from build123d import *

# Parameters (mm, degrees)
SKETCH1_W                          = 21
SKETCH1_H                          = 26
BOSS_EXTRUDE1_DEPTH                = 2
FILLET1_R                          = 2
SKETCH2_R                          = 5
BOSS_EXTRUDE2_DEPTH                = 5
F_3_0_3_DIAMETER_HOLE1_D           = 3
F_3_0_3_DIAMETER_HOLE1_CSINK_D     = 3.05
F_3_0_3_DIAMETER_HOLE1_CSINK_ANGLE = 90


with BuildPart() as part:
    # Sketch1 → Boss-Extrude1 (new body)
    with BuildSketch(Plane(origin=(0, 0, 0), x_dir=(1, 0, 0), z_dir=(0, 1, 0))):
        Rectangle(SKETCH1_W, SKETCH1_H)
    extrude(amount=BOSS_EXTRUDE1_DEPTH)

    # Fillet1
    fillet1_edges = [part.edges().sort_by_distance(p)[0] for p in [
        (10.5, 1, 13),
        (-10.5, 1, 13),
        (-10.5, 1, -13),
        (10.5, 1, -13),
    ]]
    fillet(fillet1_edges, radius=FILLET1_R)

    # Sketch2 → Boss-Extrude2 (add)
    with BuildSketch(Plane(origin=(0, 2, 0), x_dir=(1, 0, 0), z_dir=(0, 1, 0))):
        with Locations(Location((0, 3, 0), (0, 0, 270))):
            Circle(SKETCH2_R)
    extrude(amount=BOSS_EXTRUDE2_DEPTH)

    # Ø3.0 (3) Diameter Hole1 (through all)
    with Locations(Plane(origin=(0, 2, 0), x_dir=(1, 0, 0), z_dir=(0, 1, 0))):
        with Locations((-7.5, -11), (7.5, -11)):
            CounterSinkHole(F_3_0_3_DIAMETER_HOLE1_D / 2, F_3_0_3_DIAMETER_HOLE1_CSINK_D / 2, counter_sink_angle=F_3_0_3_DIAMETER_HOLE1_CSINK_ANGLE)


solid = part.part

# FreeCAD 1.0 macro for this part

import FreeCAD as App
import Part
import Sketcher
from FreeCAD import Vector
Q = App.Units.Quantity


def edges_at(feature, points):
    """Names of the edges that pass closest to the given points."""
    edges = feature.Shape.Edges
    near = lambda p: min(range(len(edges)), key=lambda i: edges[i].distToShape(Part.Vertex(*p))[0])
    return sorted({f"Edge{near(p) + 1}" for p in points})

doc = App.newDocument("Part")
body = doc.addObject("PartDesign::Body", "Body")

# Sketch on XZ plane
sketch1 = body.newObject("Sketcher::SketchObject", "Sketch")
sketch1.AttachmentSupport = (doc.getObject("XZ_Plane"), [""])
sketch1.MapMode = "FlatFace"
sketch1.addGeometry([
    Part.LineSegment(Vector(-10, -13, 0), Vector(-10, 13, 0)),
    Part.LineSegment(Vector(-10, 13, 0), Vector(10, 13, 0)),
    Part.LineSegment(Vector(10, 13, 0), Vector(10, -13, 0)),
    Part.LineSegment(Vector(10, -13, 0), Vector(-10, -13, 0)),
], False)
sketch1.addConstraint([
    Sketcher.Constraint("Coincident", 0, 2, 1, 1),
    Sketcher.Constraint("Coincident", 1, 2, 2, 1),
    Sketcher.Constraint("Coincident", 2, 2, 3, 1),
    Sketcher.Constraint("Coincident", 3, 2, 0, 1),
    Sketcher.Constraint("Vertical", 0),
    Sketcher.Constraint("Horizontal", 1),
    Sketcher.Constraint("Vertical", 2),
    Sketcher.Constraint("Horizontal", 3),
    Sketcher.Constraint("Symmetric", 0, 2, 2, 2, -1, 1),
    Sketcher.Constraint("DistanceX", 1, 1, 1, 2, Q("21 mm")),
    Sketcher.Constraint("DistanceY", 0, 1, 0, 2, Q("26 mm")),
])
pad1 = body.newObject("PartDesign::Pad", "Pad")
pad1.Profile = sketch1
pad1.Length = 2
pad1.Reversed = True
doc.recompute()

fillet = body.newObject("PartDesign::Fillet", "Fillet")
fillet.Base = (pad1, edges_at(pad1, [
    (10.5, 1, 13),
    (-10.5, 1, 13),
    (-10.5, 1, -13),
    (10.5, 1, -13),
]))
fillet.Radius = 2

# Sketch on XZ plane
sketch2 = body.newObject("Sketcher::SketchObject", "Sketch001")
sketch2.AttachmentSupport = (doc.getObject("XZ_Plane"), [""])
sketch2.MapMode = "FlatFace"
sketch2.AttachmentOffset = App.Placement(Vector(0, 0, -2), App.Rotation())
sketch2.addGeometry(Part.Circle(Vector(0, -3, 0), Vector(0, 0, 1), 5), False)
sketch2.addConstraint([
    Sketcher.Constraint("PointOnObject", 0, 3, -2),
    Sketcher.Constraint("Diameter", 0, Q("10 mm")),
    Sketcher.Constraint("DistanceY", 0, 3, -1, 1, Q("3 mm")),
])
pad2 = body.newObject("PartDesign::Pad", "Pad001")
pad2.Profile = sketch2
pad2.Length = 5
pad2.Reversed = True

# Sketch on XZ plane
sketch3 = body.newObject("Sketcher::SketchObject", "Sketch002")
sketch3.AttachmentSupport = (doc.getObject("XZ_Plane"), [""])
sketch3.MapMode = "FlatFace"
sketch3.AttachmentOffset = App.Placement(Vector(0, 0, -2), App.Rotation())
sketch3.addGeometry([
    Part.Circle(Vector(-7.5, 11, 0), Vector(0, 0, 1), 1.5),
    Part.Circle(Vector(7.5, 11, 0), Vector(0, 0, 1), 1.5),
], False)
sketch3.addConstraint([
    Sketcher.Constraint("Equal", 0, 1),
    Sketcher.Constraint("Symmetric", 0, 3, 1, 3, -2),
    Sketcher.Constraint("Diameter", 0, Q("3 mm")),
    Sketcher.Constraint("DistanceY", -1, 1, 0, 3, Q("11 mm")),
    Sketcher.Constraint("DistanceX", 0, 3, 1, 3, Q("15 mm")),
])
doc.recompute()
hole = body.newObject("PartDesign::Hole", "Hole")
hole.Profile = sketch3
hole.ThreadType = "None"
hole.Diameter = 3
hole.DepthType = "ThroughAll"
hole.HoleCutType = "Countersink"
hole.HoleCutDiameter = 3.05
hole.HoleCutCountersinkAngle = 90
hole.Reversed = True

doc.recompute()
